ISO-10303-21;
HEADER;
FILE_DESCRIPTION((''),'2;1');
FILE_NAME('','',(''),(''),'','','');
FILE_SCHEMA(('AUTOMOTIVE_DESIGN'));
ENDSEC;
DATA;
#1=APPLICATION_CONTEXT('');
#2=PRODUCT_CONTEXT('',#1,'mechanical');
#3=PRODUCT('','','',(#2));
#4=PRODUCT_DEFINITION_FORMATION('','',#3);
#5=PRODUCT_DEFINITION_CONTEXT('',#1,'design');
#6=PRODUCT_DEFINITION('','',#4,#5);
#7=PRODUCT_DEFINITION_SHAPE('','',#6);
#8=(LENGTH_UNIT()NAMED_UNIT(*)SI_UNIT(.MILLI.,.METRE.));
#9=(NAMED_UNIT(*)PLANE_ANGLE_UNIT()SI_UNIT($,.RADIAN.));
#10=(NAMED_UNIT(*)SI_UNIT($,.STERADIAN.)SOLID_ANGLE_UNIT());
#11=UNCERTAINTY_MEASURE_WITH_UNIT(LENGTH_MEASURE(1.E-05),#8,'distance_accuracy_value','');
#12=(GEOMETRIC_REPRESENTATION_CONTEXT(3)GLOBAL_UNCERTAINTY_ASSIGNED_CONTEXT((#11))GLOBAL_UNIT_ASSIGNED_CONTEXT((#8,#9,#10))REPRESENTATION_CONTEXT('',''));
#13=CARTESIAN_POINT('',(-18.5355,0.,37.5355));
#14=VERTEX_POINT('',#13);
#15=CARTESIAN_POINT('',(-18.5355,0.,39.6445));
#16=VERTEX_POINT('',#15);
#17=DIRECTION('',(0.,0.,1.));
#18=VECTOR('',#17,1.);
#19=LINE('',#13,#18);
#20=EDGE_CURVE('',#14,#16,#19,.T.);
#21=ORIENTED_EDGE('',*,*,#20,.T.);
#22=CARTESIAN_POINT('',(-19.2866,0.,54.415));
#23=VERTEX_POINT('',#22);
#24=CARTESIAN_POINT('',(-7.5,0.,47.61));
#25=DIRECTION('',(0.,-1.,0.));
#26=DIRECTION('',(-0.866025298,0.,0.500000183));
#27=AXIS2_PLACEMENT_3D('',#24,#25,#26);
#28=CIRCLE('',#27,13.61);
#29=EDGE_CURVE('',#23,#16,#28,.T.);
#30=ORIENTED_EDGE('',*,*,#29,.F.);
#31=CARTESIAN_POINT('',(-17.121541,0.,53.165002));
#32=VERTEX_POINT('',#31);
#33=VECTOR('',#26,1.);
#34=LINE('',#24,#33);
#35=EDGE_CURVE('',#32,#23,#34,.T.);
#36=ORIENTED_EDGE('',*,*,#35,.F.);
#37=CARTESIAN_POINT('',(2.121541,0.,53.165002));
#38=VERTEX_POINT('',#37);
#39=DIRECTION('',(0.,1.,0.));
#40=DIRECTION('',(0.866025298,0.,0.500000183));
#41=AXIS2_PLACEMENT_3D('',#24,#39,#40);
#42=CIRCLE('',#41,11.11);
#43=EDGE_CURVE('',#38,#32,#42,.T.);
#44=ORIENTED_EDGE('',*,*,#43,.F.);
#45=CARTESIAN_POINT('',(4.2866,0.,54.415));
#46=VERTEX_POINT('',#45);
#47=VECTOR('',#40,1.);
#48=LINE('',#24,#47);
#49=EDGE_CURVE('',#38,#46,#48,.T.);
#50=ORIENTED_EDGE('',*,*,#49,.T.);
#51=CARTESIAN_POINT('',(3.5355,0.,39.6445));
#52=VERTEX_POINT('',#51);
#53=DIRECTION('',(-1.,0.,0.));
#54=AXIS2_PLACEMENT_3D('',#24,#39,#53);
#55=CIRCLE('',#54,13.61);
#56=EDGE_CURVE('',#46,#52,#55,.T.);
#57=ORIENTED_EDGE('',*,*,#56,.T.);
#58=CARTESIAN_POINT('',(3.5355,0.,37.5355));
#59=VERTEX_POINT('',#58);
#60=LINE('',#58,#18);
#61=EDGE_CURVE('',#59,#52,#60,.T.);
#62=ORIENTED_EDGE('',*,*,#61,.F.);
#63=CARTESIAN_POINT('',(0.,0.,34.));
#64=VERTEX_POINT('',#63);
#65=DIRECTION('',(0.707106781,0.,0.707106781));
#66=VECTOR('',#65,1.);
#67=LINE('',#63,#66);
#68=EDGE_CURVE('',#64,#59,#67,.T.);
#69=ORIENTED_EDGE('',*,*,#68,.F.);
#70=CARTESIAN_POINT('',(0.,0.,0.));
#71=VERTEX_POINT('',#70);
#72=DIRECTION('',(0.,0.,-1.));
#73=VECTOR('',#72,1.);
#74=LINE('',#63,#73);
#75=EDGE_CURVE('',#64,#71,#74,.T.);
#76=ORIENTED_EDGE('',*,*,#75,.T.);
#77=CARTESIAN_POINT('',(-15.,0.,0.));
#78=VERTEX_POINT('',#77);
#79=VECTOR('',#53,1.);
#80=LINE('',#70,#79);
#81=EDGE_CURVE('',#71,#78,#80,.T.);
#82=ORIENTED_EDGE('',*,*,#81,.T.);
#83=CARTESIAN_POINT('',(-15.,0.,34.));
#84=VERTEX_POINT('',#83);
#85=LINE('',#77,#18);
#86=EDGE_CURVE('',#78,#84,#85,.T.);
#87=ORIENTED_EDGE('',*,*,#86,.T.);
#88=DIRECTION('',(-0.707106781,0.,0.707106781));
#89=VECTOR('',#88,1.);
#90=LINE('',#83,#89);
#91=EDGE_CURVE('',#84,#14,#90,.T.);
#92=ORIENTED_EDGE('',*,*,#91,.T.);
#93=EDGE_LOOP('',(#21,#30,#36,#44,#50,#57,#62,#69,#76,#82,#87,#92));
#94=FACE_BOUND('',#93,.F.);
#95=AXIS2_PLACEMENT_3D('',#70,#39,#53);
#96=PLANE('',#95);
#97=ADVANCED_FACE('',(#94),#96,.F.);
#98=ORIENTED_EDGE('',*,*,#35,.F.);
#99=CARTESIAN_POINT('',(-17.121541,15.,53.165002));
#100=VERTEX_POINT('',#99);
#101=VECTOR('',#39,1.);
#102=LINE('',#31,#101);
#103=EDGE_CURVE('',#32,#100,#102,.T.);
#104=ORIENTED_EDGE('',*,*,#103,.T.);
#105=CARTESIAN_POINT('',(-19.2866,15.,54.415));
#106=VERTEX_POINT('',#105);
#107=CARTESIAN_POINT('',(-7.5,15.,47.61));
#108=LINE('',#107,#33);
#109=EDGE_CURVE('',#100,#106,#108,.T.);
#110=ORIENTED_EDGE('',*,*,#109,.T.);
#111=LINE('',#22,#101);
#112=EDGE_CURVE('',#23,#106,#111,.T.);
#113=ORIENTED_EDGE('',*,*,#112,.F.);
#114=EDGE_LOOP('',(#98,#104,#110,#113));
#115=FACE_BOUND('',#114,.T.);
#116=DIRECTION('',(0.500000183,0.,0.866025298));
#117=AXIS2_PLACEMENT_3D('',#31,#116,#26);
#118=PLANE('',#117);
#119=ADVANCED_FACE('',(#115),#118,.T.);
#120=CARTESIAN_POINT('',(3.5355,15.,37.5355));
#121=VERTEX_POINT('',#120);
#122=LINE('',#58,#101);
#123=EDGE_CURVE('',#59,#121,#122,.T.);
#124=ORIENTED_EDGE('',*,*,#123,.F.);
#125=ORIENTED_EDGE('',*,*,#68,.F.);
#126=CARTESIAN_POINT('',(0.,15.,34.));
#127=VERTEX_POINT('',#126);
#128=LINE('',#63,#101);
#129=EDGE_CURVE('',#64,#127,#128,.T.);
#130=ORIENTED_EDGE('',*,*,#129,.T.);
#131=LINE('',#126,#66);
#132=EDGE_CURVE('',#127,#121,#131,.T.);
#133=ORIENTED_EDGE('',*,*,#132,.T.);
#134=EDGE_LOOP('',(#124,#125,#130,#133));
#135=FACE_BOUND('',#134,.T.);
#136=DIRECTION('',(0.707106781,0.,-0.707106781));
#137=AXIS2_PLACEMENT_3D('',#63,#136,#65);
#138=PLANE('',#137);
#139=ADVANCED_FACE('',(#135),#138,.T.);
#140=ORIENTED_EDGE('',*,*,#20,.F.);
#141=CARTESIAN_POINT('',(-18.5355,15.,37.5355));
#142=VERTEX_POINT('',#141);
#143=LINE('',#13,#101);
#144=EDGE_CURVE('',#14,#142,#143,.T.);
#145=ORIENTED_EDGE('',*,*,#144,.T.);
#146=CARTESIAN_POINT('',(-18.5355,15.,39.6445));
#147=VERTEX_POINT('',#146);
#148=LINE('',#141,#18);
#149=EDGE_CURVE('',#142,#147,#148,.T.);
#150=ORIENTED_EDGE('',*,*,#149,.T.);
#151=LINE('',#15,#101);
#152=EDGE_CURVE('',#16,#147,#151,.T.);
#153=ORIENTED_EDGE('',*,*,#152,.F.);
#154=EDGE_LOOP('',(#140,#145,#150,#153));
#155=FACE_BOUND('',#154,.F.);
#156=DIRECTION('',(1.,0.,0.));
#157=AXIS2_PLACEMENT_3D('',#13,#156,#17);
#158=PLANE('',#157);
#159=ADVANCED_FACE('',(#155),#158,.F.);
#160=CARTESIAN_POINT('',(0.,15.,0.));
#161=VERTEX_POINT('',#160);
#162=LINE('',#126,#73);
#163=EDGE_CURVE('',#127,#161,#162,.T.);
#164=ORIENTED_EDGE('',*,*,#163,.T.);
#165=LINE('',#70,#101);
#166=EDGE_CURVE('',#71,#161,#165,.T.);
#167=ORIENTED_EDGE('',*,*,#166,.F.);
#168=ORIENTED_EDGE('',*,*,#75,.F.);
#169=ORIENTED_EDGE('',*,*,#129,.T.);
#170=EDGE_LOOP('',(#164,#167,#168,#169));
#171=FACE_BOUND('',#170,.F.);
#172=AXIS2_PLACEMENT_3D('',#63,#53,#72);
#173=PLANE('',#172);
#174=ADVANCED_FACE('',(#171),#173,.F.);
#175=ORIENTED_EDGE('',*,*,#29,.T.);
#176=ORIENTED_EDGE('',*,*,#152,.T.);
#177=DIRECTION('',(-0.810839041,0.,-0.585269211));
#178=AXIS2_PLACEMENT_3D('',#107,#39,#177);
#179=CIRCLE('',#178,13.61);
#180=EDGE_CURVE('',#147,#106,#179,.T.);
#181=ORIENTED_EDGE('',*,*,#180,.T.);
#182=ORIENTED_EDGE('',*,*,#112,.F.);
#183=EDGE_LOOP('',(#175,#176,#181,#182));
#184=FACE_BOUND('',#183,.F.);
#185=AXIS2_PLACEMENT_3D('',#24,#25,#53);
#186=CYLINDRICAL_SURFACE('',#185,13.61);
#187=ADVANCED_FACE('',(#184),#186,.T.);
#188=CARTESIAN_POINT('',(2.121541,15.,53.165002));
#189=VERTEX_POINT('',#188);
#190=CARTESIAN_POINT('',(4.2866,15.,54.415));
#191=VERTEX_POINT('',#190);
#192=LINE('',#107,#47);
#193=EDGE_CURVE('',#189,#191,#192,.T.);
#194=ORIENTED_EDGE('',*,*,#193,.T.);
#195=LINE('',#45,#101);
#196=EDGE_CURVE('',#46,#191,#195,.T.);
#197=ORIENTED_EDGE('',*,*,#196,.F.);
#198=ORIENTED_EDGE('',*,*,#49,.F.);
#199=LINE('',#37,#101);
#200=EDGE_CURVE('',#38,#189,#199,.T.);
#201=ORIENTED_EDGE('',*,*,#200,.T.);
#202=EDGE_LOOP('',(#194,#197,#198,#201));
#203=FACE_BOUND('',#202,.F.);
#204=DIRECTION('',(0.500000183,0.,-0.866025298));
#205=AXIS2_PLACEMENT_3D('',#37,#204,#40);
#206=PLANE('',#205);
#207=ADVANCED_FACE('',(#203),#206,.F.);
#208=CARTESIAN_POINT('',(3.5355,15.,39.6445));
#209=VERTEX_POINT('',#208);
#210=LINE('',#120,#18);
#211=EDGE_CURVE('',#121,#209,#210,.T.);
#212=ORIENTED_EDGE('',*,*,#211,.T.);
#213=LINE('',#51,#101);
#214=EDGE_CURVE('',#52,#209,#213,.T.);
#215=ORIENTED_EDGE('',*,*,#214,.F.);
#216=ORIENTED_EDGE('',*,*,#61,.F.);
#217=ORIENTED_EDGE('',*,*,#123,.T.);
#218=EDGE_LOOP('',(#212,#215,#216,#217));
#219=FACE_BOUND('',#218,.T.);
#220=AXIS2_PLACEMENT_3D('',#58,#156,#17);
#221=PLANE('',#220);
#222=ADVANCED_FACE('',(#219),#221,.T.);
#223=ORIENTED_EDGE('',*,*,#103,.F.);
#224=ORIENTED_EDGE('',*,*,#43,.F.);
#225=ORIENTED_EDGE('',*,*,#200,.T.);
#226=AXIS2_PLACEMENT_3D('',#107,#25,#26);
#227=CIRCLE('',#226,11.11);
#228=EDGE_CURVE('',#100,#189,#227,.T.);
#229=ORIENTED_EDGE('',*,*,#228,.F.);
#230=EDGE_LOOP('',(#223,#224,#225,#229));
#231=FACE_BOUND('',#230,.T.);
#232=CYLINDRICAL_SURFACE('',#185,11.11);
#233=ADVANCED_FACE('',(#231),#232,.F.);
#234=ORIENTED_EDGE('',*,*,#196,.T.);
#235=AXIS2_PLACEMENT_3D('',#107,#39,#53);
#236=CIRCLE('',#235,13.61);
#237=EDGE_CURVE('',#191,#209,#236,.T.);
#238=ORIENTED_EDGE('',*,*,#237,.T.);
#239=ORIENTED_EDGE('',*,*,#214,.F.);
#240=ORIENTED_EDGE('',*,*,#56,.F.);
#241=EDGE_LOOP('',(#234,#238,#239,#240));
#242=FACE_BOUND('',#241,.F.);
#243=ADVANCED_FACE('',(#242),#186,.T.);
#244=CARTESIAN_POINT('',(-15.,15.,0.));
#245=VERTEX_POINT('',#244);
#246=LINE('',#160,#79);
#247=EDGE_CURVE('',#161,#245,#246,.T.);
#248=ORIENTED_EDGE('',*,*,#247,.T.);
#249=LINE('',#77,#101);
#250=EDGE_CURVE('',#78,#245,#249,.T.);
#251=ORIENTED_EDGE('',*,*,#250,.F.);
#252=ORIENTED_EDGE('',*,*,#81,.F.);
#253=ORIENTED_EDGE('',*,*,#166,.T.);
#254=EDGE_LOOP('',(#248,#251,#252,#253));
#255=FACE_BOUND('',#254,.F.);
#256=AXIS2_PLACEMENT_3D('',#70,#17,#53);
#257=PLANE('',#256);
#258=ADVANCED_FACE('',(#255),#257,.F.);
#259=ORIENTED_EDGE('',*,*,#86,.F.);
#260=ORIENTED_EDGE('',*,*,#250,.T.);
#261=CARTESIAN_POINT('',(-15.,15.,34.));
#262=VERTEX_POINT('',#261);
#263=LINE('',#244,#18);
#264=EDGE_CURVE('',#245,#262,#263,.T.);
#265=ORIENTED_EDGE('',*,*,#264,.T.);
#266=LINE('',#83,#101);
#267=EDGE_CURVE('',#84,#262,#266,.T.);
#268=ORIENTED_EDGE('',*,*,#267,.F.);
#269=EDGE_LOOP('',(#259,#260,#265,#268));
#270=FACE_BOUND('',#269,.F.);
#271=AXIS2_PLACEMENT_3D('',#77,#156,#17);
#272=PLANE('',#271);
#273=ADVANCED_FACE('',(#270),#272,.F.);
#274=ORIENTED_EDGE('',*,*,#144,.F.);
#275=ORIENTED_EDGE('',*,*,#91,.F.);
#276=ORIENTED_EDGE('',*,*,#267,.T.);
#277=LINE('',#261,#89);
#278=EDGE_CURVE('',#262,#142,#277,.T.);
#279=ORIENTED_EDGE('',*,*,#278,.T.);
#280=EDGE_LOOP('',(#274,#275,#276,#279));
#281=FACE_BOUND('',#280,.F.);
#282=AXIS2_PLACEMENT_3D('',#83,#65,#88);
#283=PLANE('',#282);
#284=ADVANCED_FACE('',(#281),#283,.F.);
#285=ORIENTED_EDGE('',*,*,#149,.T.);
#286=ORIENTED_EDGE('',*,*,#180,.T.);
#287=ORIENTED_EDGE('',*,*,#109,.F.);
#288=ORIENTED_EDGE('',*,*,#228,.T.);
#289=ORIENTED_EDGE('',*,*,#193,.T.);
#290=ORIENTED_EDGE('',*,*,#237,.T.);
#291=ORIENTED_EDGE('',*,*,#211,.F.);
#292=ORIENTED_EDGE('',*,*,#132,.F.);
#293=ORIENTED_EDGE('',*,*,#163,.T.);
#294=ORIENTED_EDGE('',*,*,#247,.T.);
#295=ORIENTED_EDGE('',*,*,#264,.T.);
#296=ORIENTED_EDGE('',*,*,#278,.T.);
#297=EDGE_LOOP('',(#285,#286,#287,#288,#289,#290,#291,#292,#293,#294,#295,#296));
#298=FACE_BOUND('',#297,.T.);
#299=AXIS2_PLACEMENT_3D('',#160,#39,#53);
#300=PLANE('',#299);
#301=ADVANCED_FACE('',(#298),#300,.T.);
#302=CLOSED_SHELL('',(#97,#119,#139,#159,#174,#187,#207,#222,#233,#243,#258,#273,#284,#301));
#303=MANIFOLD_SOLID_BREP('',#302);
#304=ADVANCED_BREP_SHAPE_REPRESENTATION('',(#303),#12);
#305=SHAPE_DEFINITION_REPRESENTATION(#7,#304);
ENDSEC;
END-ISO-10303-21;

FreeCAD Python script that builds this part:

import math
import FreeCAD as App
import Part
import Sketcher

V = App.Vector
Q = App.Units.Quantity

doc = App.newDocument("Part")
body = doc.addObject("PartDesign::Body", "Body")

sketch1 = doc.addObject("Sketcher::SketchObject", "Sketch")
body.addObject(sketch1)
sketch1.AttachmentSupport = (doc.XZ_Plane, [""])
sketch1.MapMode = "FlatFace"
sketch1.addGeometry(Part.LineSegment(V(0, 34, 0), V(0, 0, 0)), False)
sketch1.addGeometry(Part.LineSegment(V(0, 0, 0), V(-15, 0, 0)), False)
sketch1.addGeometry(Part.LineSegment(V(-15, 0, 0), V(-15, 34, 0)), False)
sketch1.addGeometry(Part.LineSegment(V(-15, 34, 0), V(-18.5, 37.5, 0)), False)
sketch1.addGeometry(Part.LineSegment(V(-18.5, 37.5, 0), V(-18.5, 39.6, 0)), False)
sketch1.addGeometry(Part.ArcOfCircle(Part.Circle(V(-7.5, 47.6, 0), V(0, 0, 1), 13.6), math.radians(150), math.radians(216)), False)
sketch1.addGeometry(Part.LineSegment(V(-19.3, 54.4, 0), V(-17.1, 53.2, 0)), False)
sketch1.addGeometry(Part.ArcOfCircle(Part.Circle(V(-7.5, 47.6, 0), V(0, 0, 1), 11.1), math.radians(150), math.radians(390)), False)
sketch1.addGeometry(Part.LineSegment(V(2.1, 53.2, 0), V(4.3, 54.4, 0)), False)
sketch1.addGeometry(Part.ArcOfCircle(Part.Circle(V(-7.5, 47.6, 0), V(0, 0, 1), 13.6), math.radians(-36), math.radians(30)), False)
sketch1.addGeometry(Part.LineSegment(V(3.5, 39.6, 0), V(3.5, 37.5, 0)), False)
sketch1.addGeometry(Part.LineSegment(V(3.5, 37.5, 0), V(0, 34, 0)), False)
sketch1.addConstraint(Sketcher.Constraint("Coincident", 0, 2, 1, 1))
sketch1.addConstraint(Sketcher.Constraint("Coincident", 1, 2, 2, 1))
sketch1.addConstraint(Sketcher.Constraint("Coincident", 2, 2, 3, 1))
sketch1.addConstraint(Sketcher.Constraint("Coincident", 3, 2, 4, 1))
sketch1.addConstraint(Sketcher.Constraint("Coincident", 4, 2, 5, 2))
sketch1.addConstraint(Sketcher.Constraint("Coincident", 5, 1, 6, 1))
sketch1.addConstraint(Sketcher.Constraint("Coincident", 6, 2, 7, 1))
sketch1.addConstraint(Sketcher.Constraint("Coincident", 7, 2, 8, 1))
sketch1.addConstraint(Sketcher.Constraint("Coincident", 8, 2, 9, 2))
sketch1.addConstraint(Sketcher.Constraint("Coincident", 9, 1, 10, 1))
sketch1.addConstraint(Sketcher.Constraint("Coincident", 10, 2, 11, 1))
sketch1.addConstraint(Sketcher.Constraint("Coincident", 11, 2, 0, 1))
sketch1.addConstraint(Sketcher.Constraint("Vertical", 0))
sketch1.addConstraint(Sketcher.Constraint("Horizontal", 1))
sketch1.addConstraint(Sketcher.Constraint("Vertical", 2))
sketch1.addConstraint(Sketcher.Constraint("Vertical", 4))
sketch1.addConstraint(Sketcher.Constraint("Vertical", 10))
sketch1.addConstraint(Sketcher.Constraint("Coincident", 0, 2, -1, 1))
sketch1.addConstraint(Sketcher.Constraint("Coincident", 7, 3, 5, 3))
sketch1.addConstraint(Sketcher.Constraint("Coincident", 9, 3, 5, 3))
sketch1.addConstraint(Sketcher.Constraint("Equal", 5, 9))
sketch1.addConstraint(Sketcher.Constraint("Perpendicular", 3, 11))
sketch1.addConstraint(Sketcher.Constraint("Horizontal", 6, 2, 7, 2))
sketch1.addConstraint(Sketcher.Constraint("Horizontal", 5, 1, 8, 2))
sketch1.addConstraint(Sketcher.Constraint("Horizontal", 4, 2, 9, 1))
sketch1.addConstraint(Sketcher.Constraint("Horizontal", 3, 2, 10, 2))
sketch1.addConstraint(Sketcher.Constraint("Horizontal", 2, 2, 11, 2))
sketch1.addConstraint(Sketcher.Constraint("Equal", 3, 11))
sketch1.addConstraint(Sketcher.Constraint("DistanceX", 1, 2, 1, 1, 15.0))
sketch1.addConstraint(Sketcher.Constraint("DistanceY", 0, 2, 0, 1, 34.0))
sketch1.addConstraint(Sketcher.Constraint("Angle", 6, Q("-30 deg")))
sketch1.addConstraint(Sketcher.Constraint("Radius", 7, 11.11))
sketch1.addConstraint(Sketcher.Constraint("Distance", 3, 5.0))
sketch1.addConstraint(Sketcher.Constraint("Distance", 6, 2.5))
sketch1.addConstraint(Sketcher.Constraint("DistanceY", 4, 1, 4, 2, 2.109))
sketch1.addConstraint(Sketcher.Constraint("DistanceY", -1, 1, 5, 1, 54.415))
pad1 = doc.addObject("PartDesign::Pad", "Pad")
body.addObject(pad1)
pad1.Profile = sketch1
pad1.Length = 15
pad1.Reversed = True

doc.recompute()
